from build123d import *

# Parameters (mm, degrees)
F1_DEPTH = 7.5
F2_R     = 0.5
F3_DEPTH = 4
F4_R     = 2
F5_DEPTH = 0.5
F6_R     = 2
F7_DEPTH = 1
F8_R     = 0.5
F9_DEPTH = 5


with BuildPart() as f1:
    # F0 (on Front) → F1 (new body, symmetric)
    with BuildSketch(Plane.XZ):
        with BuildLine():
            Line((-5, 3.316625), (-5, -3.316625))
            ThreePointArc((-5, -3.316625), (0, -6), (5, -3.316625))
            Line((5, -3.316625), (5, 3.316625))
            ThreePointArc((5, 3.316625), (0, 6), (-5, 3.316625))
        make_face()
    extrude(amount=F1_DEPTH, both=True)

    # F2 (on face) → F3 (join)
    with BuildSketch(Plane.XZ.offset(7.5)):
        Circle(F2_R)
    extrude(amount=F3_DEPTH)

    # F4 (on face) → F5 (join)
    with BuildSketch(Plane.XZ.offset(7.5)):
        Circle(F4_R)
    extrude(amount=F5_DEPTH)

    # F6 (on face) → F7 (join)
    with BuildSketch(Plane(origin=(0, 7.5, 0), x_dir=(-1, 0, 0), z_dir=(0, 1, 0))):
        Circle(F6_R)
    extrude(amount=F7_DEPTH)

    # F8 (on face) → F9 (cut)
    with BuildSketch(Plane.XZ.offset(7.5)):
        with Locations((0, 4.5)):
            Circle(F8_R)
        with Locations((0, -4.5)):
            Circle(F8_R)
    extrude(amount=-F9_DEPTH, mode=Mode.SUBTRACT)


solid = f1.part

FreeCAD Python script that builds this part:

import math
import FreeCAD as App
import Part
import Sketcher
from FreeCAD import Vector

doc = App.newDocument("Part")
body = doc.addObject("PartDesign::Body", "Body")

sketch1 = body.newObject("Sketcher::SketchObject", "Sketch")
sketch1.AttachmentSupport = (doc.getObject("XZ_Plane"), [""])
sketch1.MapMode = "FlatFace"
sketch1.addGeometry(Part.LineSegment(Vector(-5, 3, 0), Vector(-5, -3, 0)), False)
sketch1.addGeometry(Part.ArcOfCircle(Part.Circle(Vector(0, 0, 0), Vector(0, 0, 1), 6), math.radians(-146), math.radians(-34)), False)
sketch1.addGeometry(Part.LineSegment(Vector(5, -3, 0), Vector(5, 3, 0)), False)
sketch1.addGeometry(Part.ArcOfCircle(Part.Circle(Vector(0, 0, 0), Vector(0, 0, 1), 6), math.radians(34), math.radians(146)), False)
sketch1.addConstraint(Sketcher.Constraint("Coincident", 0, 2, 1, 1))
sketch1.addConstraint(Sketcher.Constraint("Coincident", 1, 2, 2, 1))
sketch1.addConstraint(Sketcher.Constraint("Coincident", 2, 2, 3, 1))
sketch1.addConstraint(Sketcher.Constraint("Coincident", 3, 2, 0, 1))
sketch1.addConstraint(Sketcher.Constraint("Vertical", 0))
sketch1.addConstraint(Sketcher.Constraint("Vertical", 2))
sketch1.addConstraint(Sketcher.Constraint("Coincident", 1, 3, -1, 1))
sketch1.addConstraint(Sketcher.Constraint("Coincident", 3, 3, -1, 1))
sketch1.addConstraint(Sketcher.Constraint("Equal", 1, 3))
sketch1.addConstraint(Sketcher.Constraint("Horizontal", 0, 2, 1, 2))
sketch1.addConstraint(Sketcher.Constraint("Radius", 1, 6.0))
sketch1.addConstraint(Sketcher.Constraint("DistanceX", 0, 2, -1, 1, 5.0))
pad1 = body.newObject("PartDesign::Pad", "Pad")
pad1.Profile = sketch1
pad1.Length = 15
pad1.Midplane = True

sketch2 = body.newObject("Sketcher::SketchObject", "Sketch001")
sketch2.AttachmentSupport = (doc.getObject("XZ_Plane"), [""])
sketch2.MapMode = "FlatFace"
sketch2.AttachmentOffset = App.Placement(Vector(0, 0, 7.5), App.Rotation())
sketch2.addGeometry(Part.Circle(Vector(0, 0, 0), Vector(0, 0, 1), 0.5), False)
sketch2.addConstraint(Sketcher.Constraint("Coincident", 0, 3, -1, 1))
sketch2.addConstraint(Sketcher.Constraint("Diameter", 0, 1.0))
pad2 = body.newObject("PartDesign::Pad", "Pad001")
pad2.Profile = sketch2
pad2.Length = 4

sketch3 = body.newObject("Sketcher::SketchObject", "Sketch002")
sketch3.AttachmentSupport = (doc.getObject("XZ_Plane"), [""])
sketch3.MapMode = "FlatFace"
sketch3.AttachmentOffset = App.Placement(Vector(0, 0, 7.5), App.Rotation())
sketch3.addGeometry(Part.Circle(Vector(0, 0, 0), Vector(0, 0, 1), 2), False)
sketch3.addConstraint(Sketcher.Constraint("Coincident", 0, 3, -1, 1))
sketch3.addConstraint(Sketcher.Constraint("Diameter", 0, 4.0))
pad3 = body.newObject("PartDesign::Pad", "Pad002")
pad3.Profile = sketch3
pad3.Length = 0.5

sketch4 = body.newObject("Sketcher::SketchObject", "Sketch003")
sketch4.AttachmentSupport = (doc.getObject("XZ_Plane"), [""])
sketch4.MapMode = "FlatFace"
sketch4.AttachmentOffset = App.Placement(Vector(0, 0, -7.5), App.Rotation())
sketch4.addGeometry(Part.Circle(Vector(0, 0, 0), Vector(0, 0, 1), 2), False)
sketch4.addConstraint(Sketcher.Constraint("Coincident", 0, 3, -1, 1))
sketch4.addConstraint(Sketcher.Constraint("Diameter", 0, 4.0))
pad4 = body.newObject("PartDesign::Pad", "Pad003")
pad4.Profile = sketch4
pad4.Length = 1
pad4.Reversed = True

sketch5 = body.newObject("Sketcher::SketchObject", "Sketch004")
sketch5.AttachmentSupport = (doc.getObject("XZ_Plane"), [""])
sketch5.MapMode = "FlatFace"
sketch5.AttachmentOffset = App.Placement(Vector(0, 0, 7.5), App.Rotation())
sketch5.addGeometry(Part.Circle(Vector(0, 4.5, 0), Vector(0, 0, 1), 0.5), False)
sketch5.addGeometry(Part.Circle(Vector(0, -4.5, 0), Vector(0, 0, 1), 0.5), False)
sketch5.addConstraint(Sketcher.Constraint("Equal", 0, 1))
sketch5.addConstraint(Sketcher.Constraint("Symmetric", 0, 3, 1, 3, -1, 1))
sketch5.addConstraint(Sketcher.Constraint("PointOnObject", 0, 3, -2))
sketch5.addConstraint(Sketcher.Constraint("Diameter", 0, 1.0))
sketch5.addConstraint(Sketcher.Constraint("DistanceY", 1, 3, 0, 3, 9.0))
pocket1 = body.newObject("PartDesign::Pocket", "Pocket")
pocket1.Profile = sketch5
pocket1.Length = 5

doc.recompute()
